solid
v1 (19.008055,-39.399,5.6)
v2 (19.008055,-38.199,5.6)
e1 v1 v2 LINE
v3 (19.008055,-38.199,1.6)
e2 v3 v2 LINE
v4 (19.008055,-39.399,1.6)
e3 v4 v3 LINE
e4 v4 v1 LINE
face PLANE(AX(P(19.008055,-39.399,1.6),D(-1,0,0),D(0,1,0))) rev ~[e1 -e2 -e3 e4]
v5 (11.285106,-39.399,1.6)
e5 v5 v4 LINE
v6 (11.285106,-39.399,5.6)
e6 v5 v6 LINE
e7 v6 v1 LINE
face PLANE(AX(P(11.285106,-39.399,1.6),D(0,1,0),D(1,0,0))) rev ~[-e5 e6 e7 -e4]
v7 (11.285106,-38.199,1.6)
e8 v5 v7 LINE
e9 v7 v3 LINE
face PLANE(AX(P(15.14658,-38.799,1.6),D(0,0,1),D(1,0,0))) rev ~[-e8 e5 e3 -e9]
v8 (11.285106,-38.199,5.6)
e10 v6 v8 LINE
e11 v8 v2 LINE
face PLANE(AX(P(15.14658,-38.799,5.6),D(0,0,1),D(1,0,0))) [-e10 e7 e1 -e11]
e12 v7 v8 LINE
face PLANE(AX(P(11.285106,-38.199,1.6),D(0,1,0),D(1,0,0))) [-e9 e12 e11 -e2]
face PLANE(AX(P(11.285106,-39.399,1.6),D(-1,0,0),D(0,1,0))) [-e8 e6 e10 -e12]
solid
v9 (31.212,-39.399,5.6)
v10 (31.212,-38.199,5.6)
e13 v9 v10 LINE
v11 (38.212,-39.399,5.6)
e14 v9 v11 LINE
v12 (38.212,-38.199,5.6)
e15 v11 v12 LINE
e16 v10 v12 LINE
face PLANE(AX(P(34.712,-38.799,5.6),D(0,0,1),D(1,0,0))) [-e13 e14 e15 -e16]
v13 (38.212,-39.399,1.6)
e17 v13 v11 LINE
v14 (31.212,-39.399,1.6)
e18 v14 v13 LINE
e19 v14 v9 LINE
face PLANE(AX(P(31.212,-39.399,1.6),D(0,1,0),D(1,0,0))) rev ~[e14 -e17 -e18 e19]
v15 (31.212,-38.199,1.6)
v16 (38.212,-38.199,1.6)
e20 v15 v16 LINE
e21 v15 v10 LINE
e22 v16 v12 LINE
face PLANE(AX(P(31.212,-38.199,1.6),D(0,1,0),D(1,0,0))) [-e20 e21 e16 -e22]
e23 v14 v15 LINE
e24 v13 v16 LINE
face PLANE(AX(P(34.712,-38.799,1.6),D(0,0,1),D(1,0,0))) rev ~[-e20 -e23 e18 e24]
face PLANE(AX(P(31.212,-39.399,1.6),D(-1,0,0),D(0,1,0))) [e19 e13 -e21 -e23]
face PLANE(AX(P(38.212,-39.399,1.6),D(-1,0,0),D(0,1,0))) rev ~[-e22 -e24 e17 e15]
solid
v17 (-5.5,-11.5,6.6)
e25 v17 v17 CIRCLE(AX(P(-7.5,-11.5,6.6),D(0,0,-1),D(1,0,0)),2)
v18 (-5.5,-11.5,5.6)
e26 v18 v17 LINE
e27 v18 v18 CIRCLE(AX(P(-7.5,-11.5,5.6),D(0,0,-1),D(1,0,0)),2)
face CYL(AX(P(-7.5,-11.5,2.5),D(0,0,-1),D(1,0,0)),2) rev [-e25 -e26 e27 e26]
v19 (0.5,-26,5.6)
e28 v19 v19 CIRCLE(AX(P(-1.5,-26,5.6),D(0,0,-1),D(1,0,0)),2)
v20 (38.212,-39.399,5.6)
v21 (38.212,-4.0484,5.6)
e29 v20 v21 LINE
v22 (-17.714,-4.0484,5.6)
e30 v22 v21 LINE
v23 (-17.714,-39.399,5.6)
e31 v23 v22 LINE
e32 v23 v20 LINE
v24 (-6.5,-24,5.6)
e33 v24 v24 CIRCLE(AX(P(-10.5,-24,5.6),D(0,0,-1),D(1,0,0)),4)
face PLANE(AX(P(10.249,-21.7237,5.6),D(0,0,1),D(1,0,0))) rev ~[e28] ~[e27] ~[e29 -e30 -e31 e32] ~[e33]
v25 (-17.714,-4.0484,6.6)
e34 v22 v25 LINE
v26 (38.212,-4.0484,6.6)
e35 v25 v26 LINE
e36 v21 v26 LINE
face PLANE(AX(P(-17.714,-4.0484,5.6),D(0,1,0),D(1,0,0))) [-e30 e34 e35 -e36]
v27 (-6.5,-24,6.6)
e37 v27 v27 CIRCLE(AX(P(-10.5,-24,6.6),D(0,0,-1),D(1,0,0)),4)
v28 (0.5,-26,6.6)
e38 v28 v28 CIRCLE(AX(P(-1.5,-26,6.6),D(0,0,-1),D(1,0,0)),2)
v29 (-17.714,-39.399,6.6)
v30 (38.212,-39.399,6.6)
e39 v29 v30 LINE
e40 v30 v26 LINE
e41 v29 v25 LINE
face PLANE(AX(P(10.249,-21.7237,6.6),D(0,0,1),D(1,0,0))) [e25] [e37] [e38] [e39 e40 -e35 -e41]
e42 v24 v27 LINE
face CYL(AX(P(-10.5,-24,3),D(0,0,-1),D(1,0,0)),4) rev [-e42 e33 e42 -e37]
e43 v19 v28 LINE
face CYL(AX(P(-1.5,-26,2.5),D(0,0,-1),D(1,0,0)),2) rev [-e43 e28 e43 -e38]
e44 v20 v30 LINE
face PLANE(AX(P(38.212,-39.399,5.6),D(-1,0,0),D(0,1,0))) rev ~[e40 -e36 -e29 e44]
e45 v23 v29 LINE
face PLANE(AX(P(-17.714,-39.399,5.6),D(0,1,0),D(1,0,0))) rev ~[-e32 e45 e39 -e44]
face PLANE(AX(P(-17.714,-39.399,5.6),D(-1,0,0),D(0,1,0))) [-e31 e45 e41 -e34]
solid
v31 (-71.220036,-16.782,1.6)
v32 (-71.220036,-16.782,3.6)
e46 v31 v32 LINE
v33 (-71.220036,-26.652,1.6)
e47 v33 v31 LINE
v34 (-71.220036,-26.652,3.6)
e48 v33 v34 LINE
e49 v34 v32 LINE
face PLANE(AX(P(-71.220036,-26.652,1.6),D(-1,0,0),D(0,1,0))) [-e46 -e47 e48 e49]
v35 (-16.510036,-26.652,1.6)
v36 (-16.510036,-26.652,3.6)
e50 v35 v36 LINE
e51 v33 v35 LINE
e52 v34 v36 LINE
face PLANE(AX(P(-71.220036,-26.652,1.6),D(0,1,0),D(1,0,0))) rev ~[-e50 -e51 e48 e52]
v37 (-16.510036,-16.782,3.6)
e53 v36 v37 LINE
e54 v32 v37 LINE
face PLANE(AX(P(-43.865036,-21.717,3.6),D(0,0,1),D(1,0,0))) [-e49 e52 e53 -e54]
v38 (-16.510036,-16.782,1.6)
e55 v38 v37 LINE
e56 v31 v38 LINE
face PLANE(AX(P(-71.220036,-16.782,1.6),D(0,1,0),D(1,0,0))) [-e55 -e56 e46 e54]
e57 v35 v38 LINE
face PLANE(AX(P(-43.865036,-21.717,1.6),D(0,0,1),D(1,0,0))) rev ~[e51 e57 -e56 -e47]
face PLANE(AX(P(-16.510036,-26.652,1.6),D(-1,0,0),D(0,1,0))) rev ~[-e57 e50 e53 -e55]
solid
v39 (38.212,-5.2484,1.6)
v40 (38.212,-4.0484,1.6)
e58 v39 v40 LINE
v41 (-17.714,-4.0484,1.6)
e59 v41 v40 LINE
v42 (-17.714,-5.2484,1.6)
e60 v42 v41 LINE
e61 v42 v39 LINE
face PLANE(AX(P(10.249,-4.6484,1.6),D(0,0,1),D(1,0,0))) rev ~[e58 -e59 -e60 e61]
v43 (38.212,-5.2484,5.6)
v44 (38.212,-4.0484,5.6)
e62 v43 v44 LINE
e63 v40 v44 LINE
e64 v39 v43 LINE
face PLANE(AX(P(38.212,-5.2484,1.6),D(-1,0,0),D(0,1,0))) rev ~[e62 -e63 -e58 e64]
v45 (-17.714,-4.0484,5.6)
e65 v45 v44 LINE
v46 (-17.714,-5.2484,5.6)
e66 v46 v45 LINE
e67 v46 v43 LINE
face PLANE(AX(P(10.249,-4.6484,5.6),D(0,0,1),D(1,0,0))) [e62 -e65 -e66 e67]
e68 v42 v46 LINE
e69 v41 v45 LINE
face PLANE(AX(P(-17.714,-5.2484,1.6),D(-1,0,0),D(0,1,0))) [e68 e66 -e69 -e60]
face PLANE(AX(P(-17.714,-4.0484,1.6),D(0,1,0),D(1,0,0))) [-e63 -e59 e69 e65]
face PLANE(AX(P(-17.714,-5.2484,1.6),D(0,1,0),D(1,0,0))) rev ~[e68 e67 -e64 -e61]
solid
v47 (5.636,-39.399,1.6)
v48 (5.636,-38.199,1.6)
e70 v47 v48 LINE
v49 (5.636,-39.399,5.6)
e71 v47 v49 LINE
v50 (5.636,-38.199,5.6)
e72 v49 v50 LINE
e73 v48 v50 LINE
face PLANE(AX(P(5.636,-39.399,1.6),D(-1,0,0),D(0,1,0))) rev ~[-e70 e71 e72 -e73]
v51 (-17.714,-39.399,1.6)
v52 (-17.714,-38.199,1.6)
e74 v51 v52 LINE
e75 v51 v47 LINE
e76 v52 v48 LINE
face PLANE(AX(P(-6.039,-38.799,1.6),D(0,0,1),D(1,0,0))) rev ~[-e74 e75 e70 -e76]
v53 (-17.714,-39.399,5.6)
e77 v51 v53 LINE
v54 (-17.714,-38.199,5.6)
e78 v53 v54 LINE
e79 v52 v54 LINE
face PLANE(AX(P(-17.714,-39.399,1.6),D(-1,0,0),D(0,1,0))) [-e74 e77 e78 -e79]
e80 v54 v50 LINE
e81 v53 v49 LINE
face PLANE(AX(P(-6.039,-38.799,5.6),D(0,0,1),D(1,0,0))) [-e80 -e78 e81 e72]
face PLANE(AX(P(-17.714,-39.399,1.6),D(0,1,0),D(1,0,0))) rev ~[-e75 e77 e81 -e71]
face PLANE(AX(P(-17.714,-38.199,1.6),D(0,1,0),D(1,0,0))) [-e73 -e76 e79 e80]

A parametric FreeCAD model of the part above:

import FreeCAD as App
import Part
import Sketcher
from FreeCAD import Vector
Q = App.Units.Quantity

doc = App.newDocument("Part")
body = doc.addObject("PartDesign::Body", "Body")

# Sketch on XY plane
sketch1 = doc.addObject("Sketcher::SketchObject", "Sketch")
body.addObject(sketch1)
sketch1.AttachmentSupport = (doc.XY_Plane, [""])
sketch1.MapMode = "FlatFace"
sketch1.AttachmentOffset = App.Placement(Vector(0, 0, 1.6), App.Rotation())
sketch1.addGeometry([
    Part.LineSegment(Vector(31.212, -38.199, 0), Vector(31.212, -39.399, 0)),
    Part.LineSegment(Vector(31.212, -39.399, 0), Vector(38.212, -39.399, 0)),
    Part.LineSegment(Vector(38.212, -39.399, 0), Vector(38.212, -38.199, 0)),
    Part.LineSegment(Vector(38.212, -38.199, 0), Vector(31.212, -38.199, 0)),
], False)
sketch1.addConstraint([
    Sketcher.Constraint("Coincident", 0, 2, 1, 1),
    Sketcher.Constraint("Coincident", 1, 2, 2, 1),
    Sketcher.Constraint("Coincident", 2, 2, 3, 1),
    Sketcher.Constraint("Coincident", 3, 2, 0, 1),
    Sketcher.Constraint("Vertical", 0),
    Sketcher.Constraint("Horizontal", 1),
    Sketcher.Constraint("Vertical", 2),
    Sketcher.Constraint("Horizontal", 3),
    Sketcher.Constraint("DistanceX", 1, 1, 1, 2, Q("7 mm")),
    Sketcher.Constraint("DistanceY", 0, 2, 0, 1, Q("1.2 mm")),
    Sketcher.Constraint("DistanceX", -1, 1, 0, 2, Q("31.212 mm")),
    Sketcher.Constraint("DistanceY", 0, 2, -1, 1, Q("39.399 mm")),
])
pad1 = doc.addObject("PartDesign::Pad", "Pad")
body.addObject(pad1)
pad1.Profile = sketch1
pad1.Length = 4
body2 = doc.addObject("PartDesign::Body", "Body001")

# Sketch on XY plane
sketch2 = doc.addObject("Sketcher::SketchObject", "Sketch001")
body2.addObject(sketch2)
sketch2.AttachmentSupport = (doc.getObject("XY_Plane001"), [""])
sketch2.MapMode = "FlatFace"
sketch2.AttachmentOffset = App.Placement(Vector(0, 0, 1.6), App.Rotation())
sketch2.addGeometry([
    Part.LineSegment(Vector(11.285106, -38.199, 0), Vector(11.285106, -39.399, 0)),
    Part.LineSegment(Vector(11.285106, -39.399, 0), Vector(19.008055, -39.399, 0)),
    Part.LineSegment(Vector(19.008055, -39.399, 0), Vector(19.008055, -38.199, 0)),
    Part.LineSegment(Vector(19.008055, -38.199, 0), Vector(11.285106, -38.199, 0)),
], False)
sketch2.addConstraint([
    Sketcher.Constraint("Coincident", 0, 2, 1, 1),
    Sketcher.Constraint("Coincident", 1, 2, 2, 1),
    Sketcher.Constraint("Coincident", 2, 2, 3, 1),
    Sketcher.Constraint("Coincident", 3, 2, 0, 1),
    Sketcher.Constraint("Vertical", 0),
    Sketcher.Constraint("Horizontal", 1),
    Sketcher.Constraint("Vertical", 2),
    Sketcher.Constraint("Horizontal", 3),
    Sketcher.Constraint("DistanceY", 0, 2, 0, 1, Q("1.2 mm")),
    Sketcher.Constraint("DistanceY", 0, 2, -1, 1, Q("39.399 mm")),
    Sketcher.Constraint("DistanceX", 1, 1, 1, 2, Q("7.722949 mm")),
    Sketcher.Constraint("DistanceX", -1, 1, 0, 2, Q("11.285106 mm")),
])
pad2 = doc.addObject("PartDesign::Pad", "Pad001")
body2.addObject(pad2)
pad2.Profile = sketch2
pad2.Length = 4
body3 = doc.addObject("PartDesign::Body", "Body002")

# Sketch on XY plane
sketch3 = doc.addObject("Sketcher::SketchObject", "Sketch002")
body3.addObject(sketch3)
sketch3.AttachmentSupport = (doc.getObject("XY_Plane002"), [""])
sketch3.MapMode = "FlatFace"
sketch3.AttachmentOffset = App.Placement(Vector(0, 0, 1.6), App.Rotation())
sketch3.addGeometry([
    Part.LineSegment(Vector(-17.714, -38.199, 0), Vector(-17.714, -39.399, 0)),
    Part.LineSegment(Vector(-17.714, -39.399, 0), Vector(5.636, -39.399, 0)),
    Part.LineSegment(Vector(5.636, -39.399, 0), Vector(5.636, -38.199, 0)),
    Part.LineSegment(Vector(5.636, -38.199, 0), Vector(-17.714, -38.199, 0)),
], False)
sketch3.addConstraint([
    Sketcher.Constraint("Coincident", 0, 2, 1, 1),
    Sketcher.Constraint("Coincident", 1, 2, 2, 1),
    Sketcher.Constraint("Coincident", 2, 2, 3, 1),
    Sketcher.Constraint("Coincident", 3, 2, 0, 1),
    Sketcher.Constraint("Vertical", 0),
    Sketcher.Constraint("Horizontal", 1),
    Sketcher.Constraint("Vertical", 2),
    Sketcher.Constraint("Horizontal", 3),
    Sketcher.Constraint("DistanceY", 0, 2, 0, 1, Q("1.2 mm")),
    Sketcher.Constraint("DistanceX", 1, 1, 1, 2, Q("23.35 mm")),
    Sketcher.Constraint("DistanceX", 0, 2, -1, 1, Q("17.714 mm")),
    Sketcher.Constraint("DistanceY", 0, 2, -1, 1, Q("39.399 mm")),
])
pad3 = doc.addObject("PartDesign::Pad", "Pad002")
body3.addObject(pad3)
pad3.Profile = sketch3
pad3.Length = 4
body4 = doc.addObject("PartDesign::Body", "Body003")

# Sketch on XY plane
sketch4 = doc.addObject("Sketcher::SketchObject", "Sketch003")
body4.addObject(sketch4)
sketch4.AttachmentSupport = (doc.getObject("XY_Plane003"), [""])
sketch4.MapMode = "FlatFace"
sketch4.AttachmentOffset = App.Placement(Vector(0, 0, 1.6), App.Rotation())
sketch4.addGeometry([
    Part.LineSegment(Vector(-71.220036, -16.782, 0), Vector(-71.220036, -26.652, 0)),
    Part.LineSegment(Vector(-71.220036, -26.652, 0), Vector(-16.510036, -26.652, 0)),
    Part.LineSegment(Vector(-16.510036, -26.652, 0), Vector(-16.510036, -16.782, 0)),
    Part.LineSegment(Vector(-16.510036, -16.782, 0), Vector(-71.220036, -16.782, 0)),
], False)
sketch4.addConstraint([
    Sketcher.Constraint("Coincident", 0, 2, 1, 1),
    Sketcher.Constraint("Coincident", 1, 2, 2, 1),
    Sketcher.Constraint("Coincident", 2, 2, 3, 1),
    Sketcher.Constraint("Coincident", 3, 2, 0, 1),
    Sketcher.Constraint("Vertical", 0),
    Sketcher.Constraint("Horizontal", 1),
    Sketcher.Constraint("Vertical", 2),
    Sketcher.Constraint("Horizontal", 3),
    Sketcher.Constraint("DistanceX", 1, 1, 1, 2, Q("54.71 mm")),
    Sketcher.Constraint("DistanceY", 0, 2, 0, 1, Q("9.87 mm")),
    Sketcher.Constraint("DistanceY", 0, 2, -1, 1, Q("26.652 mm")),
    Sketcher.Constraint("DistanceX", 0, 2, -1, 1, Q("71.220036 mm")),
])
pad4 = doc.addObject("PartDesign::Pad", "Pad003")
body4.addObject(pad4)
pad4.Profile = sketch4
pad4.Length = 2
body5 = doc.addObject("PartDesign::Body", "Body004")

# Sketch on XY plane
sketch5 = doc.addObject("Sketcher::SketchObject", "Sketch004")
body5.addObject(sketch5)
sketch5.AttachmentSupport = (doc.getObject("XY_Plane004"), [""])
sketch5.MapMode = "FlatFace"
sketch5.AttachmentOffset = App.Placement(Vector(0, 0, 3), App.Rotation())
sketch5.addGeometry(Part.Circle(Vector(-10.5, -24, 0), Vector(0, 0, 1), 4), False)
sketch5.addConstraint([
    Sketcher.Constraint("Diameter", 0, Q("8 mm")),
    Sketcher.Constraint("DistanceY", 0, 3, -1, 1, Q("24 mm")),
    Sketcher.Constraint("DistanceX", 0, 3, -1, 1, Q("10.5 mm")),
])
pad5 = doc.addObject("PartDesign::Pad", "Pad004")
body5.addObject(pad5)
pad5.Profile = sketch5
pad5.Length = 10
body6 = doc.addObject("PartDesign::Body", "Body005")

# Sketch on XY plane
sketch6 = doc.addObject("Sketcher::SketchObject", "Sketch005")
body6.addObject(sketch6)
sketch6.AttachmentSupport = (doc.getObject("XY_Plane005"), [""])
sketch6.MapMode = "FlatFace"
sketch6.AttachmentOffset = App.Placement(Vector(0, 0, 2.5), App.Rotation())
sketch6.addGeometry(Part.Circle(Vector(-7.5, -11.5, 0), Vector(0, 0, 1), 2), False)
sketch6.addConstraint([
    Sketcher.Constraint("Diameter", 0, Q("4 mm")),
    Sketcher.Constraint("DistanceX", 0, 3, -1, 1, Q("7.5 mm")),
    Sketcher.Constraint("DistanceY", 0, 3, -1, 1, Q("11.5 mm")),
])
pad6 = doc.addObject("PartDesign::Pad", "Pad005")
body6.addObject(pad6)
pad6.Profile = sketch6
pad6.Length = 10
body7 = doc.addObject("PartDesign::Body", "Body006")

# Sketch on XY plane
sketch7 = doc.addObject("Sketcher::SketchObject", "Sketch006")
body7.addObject(sketch7)
sketch7.AttachmentSupport = (doc.getObject("XY_Plane006"), [""])
sketch7.MapMode = "FlatFace"
sketch7.AttachmentOffset = App.Placement(Vector(0, 0, 2.5), App.Rotation())
sketch7.addGeometry(Part.Circle(Vector(-1.5, -26, 0), Vector(0, 0, 1), 2), False)
sketch7.addConstraint([
    Sketcher.Constraint("Diameter", 0, Q("4 mm")),
    Sketcher.Constraint("DistanceY", 0, 3, -1, 1, Q("26 mm")),
    Sketcher.Constraint("DistanceX", 0, 3, -1, 1, Q("1.5 mm")),
])
pad7 = doc.addObject("PartDesign::Pad", "Pad006")
body7.addObject(pad7)
pad7.Profile = sketch7
pad7.Length = 10
body8 = doc.addObject("PartDesign::Body", "Body007")

# Sketch on XY plane
sketch8 = doc.addObject("Sketcher::SketchObject", "Sketch007")
body8.addObject(sketch8)
sketch8.AttachmentSupport = (doc.getObject("XY_Plane007"), [""])
sketch8.MapMode = "FlatFace"
sketch8.AttachmentOffset = App.Placement(Vector(0, 0, 5.6), App.Rotation())
sketch8.addGeometry([
    Part.LineSegment(Vector(-17.714, -4.0484, 0), Vector(-17.714, -39.399, 0)),
    Part.LineSegment(Vector(-17.714, -39.399, 0), Vector(38.212, -39.399, 0)),
    Part.LineSegment(Vector(38.212, -39.399, 0), Vector(38.212, -4.0484, 0)),
    Part.LineSegment(Vector(38.212, -4.0484, 0), Vector(-17.714, -4.0484, 0)),
], False)
sketch8.addConstraint([
    Sketcher.Constraint("Coincident", 0, 2, 1, 1),
    Sketcher.Constraint("Coincident", 1, 2, 2, 1),
    Sketcher.Constraint("Coincident", 2, 2, 3, 1),
    Sketcher.Constraint("Coincident", 3, 2, 0, 1),
    Sketcher.Constraint("Vertical", 0),
    Sketcher.Constraint("Horizontal", 1),
    Sketcher.Constraint("Vertical", 2),
    Sketcher.Constraint("Horizontal", 3),
    Sketcher.Constraint("DistanceX", 1, 1, 1, 2, Q("55.926 mm")),
    Sketcher.Constraint("DistanceY", 0, 2, 0, 1, Q("35.3506 mm")),
    Sketcher.Constraint("DistanceX", 0, 2, -1, 1, Q("17.714 mm")),
    Sketcher.Constraint("DistanceY", 0, 2, -1, 1, Q("39.399 mm")),
])
pad8 = doc.addObject("PartDesign::Pad", "Pad007")
body8.addObject(pad8)
pad8.Profile = sketch8
pad8.Length = 1
doc.recompute()

boolean = doc.addObject("PartDesign::Boolean", "Boolean")
body8.addObject(boolean)
boolean.Type = "Cut"
boolean.addObjects([body7])
doc.recompute()

boolean2 = doc.addObject("PartDesign::Boolean", "Boolean001")
body8.addObject(boolean2)
boolean2.Type = "Cut"
boolean2.addObjects([body6])
doc.recompute()

boolean3 = doc.addObject("PartDesign::Boolean", "Boolean002")
body8.addObject(boolean3)
boolean3.Type = "Cut"
boolean3.addObjects([body5])
body9 = doc.addObject("PartDesign::Body", "Body008")

# Sketch on XY plane
sketch9 = doc.addObject("Sketcher::SketchObject", "Sketch008")
body9.addObject(sketch9)
sketch9.AttachmentSupport = (doc.getObject("XY_Plane008"), [""])
sketch9.MapMode = "FlatFace"
sketch9.AttachmentOffset = App.Placement(Vector(0, 0, 1.6), App.Rotation())
sketch9.addGeometry([
    Part.LineSegment(Vector(-17.714, -4.0484, 0), Vector(-17.714, -5.2484, 0)),
    Part.LineSegment(Vector(-17.714, -5.2484, 0), Vector(38.212, -5.2484, 0)),
    Part.LineSegment(Vector(38.212, -5.2484, 0), Vector(38.212, -4.0484, 0)),
    Part.LineSegment(Vector(38.212, -4.0484, 0), Vector(-17.714, -4.0484, 0)),
], False)
sketch9.addConstraint([
    Sketcher.Constraint("Coincident", 0, 2, 1, 1),
    Sketcher.Constraint("Coincident", 1, 2, 2, 1),
    Sketcher.Constraint("Coincident", 2, 2, 3, 1),
    Sketcher.Constraint("Coincident", 3, 2, 0, 1),
    Sketcher.Constraint("Vertical", 0),
    Sketcher.Constraint("Horizontal", 1),
    Sketcher.Constraint("Vertical", 2),
    Sketcher.Constraint("Horizontal", 3),
    Sketcher.Constraint("DistanceY", 0, 2, 0, 1, Q("1.2 mm")),
    Sketcher.Constraint("DistanceX", 1, 1, 1, 2, Q("55.926 mm")),
    Sketcher.Constraint("DistanceX", 0, 2, -1, 1, Q("17.714 mm")),
    Sketcher.Constraint("DistanceY", 0, 2, -1, 1, Q("5.2484 mm")),
])
pad9 = doc.addObject("PartDesign::Pad", "Pad008")
body9.addObject(pad9)
pad9.Profile = sketch9
pad9.Length = 4

doc.recompute()
